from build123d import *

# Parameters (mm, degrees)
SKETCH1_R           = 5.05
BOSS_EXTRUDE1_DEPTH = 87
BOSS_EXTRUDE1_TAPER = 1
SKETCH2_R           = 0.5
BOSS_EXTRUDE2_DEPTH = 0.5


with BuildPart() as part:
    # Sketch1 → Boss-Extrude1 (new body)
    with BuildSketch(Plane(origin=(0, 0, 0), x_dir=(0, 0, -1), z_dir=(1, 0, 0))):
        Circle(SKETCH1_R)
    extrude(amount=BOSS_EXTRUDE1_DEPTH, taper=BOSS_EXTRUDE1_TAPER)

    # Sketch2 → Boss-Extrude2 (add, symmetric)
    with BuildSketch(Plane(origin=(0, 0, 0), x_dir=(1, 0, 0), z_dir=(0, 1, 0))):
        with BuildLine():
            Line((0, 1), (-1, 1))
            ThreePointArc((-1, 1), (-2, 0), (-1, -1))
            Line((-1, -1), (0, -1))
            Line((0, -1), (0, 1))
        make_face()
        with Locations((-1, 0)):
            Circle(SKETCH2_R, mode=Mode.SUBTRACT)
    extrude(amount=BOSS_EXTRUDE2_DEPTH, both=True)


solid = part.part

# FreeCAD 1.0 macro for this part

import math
import FreeCAD as App
import Part
import Sketcher
from FreeCAD import Vector
Q = App.Units.Quantity

doc = App.newDocument("Part")
body = doc.addObject("PartDesign::Body", "Body")

# Sketch on YZ plane
sketch1 = body.newObject("Sketcher::SketchObject", "Sketch")
sketch1.AttachmentSupport = (doc.getObject("YZ_Plane"), [""])
sketch1.MapMode = "FlatFace"
sketch1.addGeometry(Part.Circle(Vector(0, 0, 0), Vector(0, 0, 1), 5.05), False)
sketch1.addConstraint([
    Sketcher.Constraint("Coincident", 0, 3, -1, 1),
    Sketcher.Constraint("Diameter", 0, Q("10.1 mm")),
])
pad1 = body.newObject("PartDesign::Pad", "Pad")
pad1.Profile = sketch1
pad1.Length = 87
pad1.TaperAngle = -1

# Sketch on XZ plane
sketch2 = body.newObject("Sketcher::SketchObject", "Sketch001")
sketch2.AttachmentSupport = (doc.getObject("XZ_Plane"), [""])
sketch2.MapMode = "FlatFace"
sketch2.addGeometry([
    Part.LineSegment(Vector(0, -1, 0), Vector(-1, -1, 0)),  # 0
    Part.ArcOfCircle(Part.Circle(Vector(-1, 0, 0), Vector(0, 0, 1), 1), math.radians(90), math.radians(270)),  # 1
    Part.LineSegment(Vector(-1, 1, 0), Vector(0, 1, 0)),  # 2
    Part.LineSegment(Vector(0, 1, 0), Vector(0, -1, 0)),  # 3
    Part.Circle(Vector(-1, 0, 0), Vector(0, 0, 1), 0.5),  # 4
], False)
sketch2.addConstraint([
    Sketcher.Constraint("Tangent", 0, 2, 1, 2),
    Sketcher.Constraint("Tangent", 1, 1, 2, 1),
    Sketcher.Constraint("Coincident", 2, 2, 3, 1),
    Sketcher.Constraint("Coincident", 3, 2, 0, 1),
    Sketcher.Constraint("Horizontal", 0),
    Sketcher.Constraint("Horizontal", 2),
    Sketcher.Constraint("Vertical", 3),
    Sketcher.Constraint("Coincident", 4, 3, 1, 3),
    Sketcher.Constraint("Symmetric", 2, 2, 3, 2, -1, 1),
    Sketcher.Constraint("Diameter", 4, Q("1 mm")),
    Sketcher.Constraint("Radius", 1, Q("1 mm")),
    Sketcher.Constraint("DistanceX", 0, 2, 0, 1, Q("1 mm")),
])
pad2 = body.newObject("PartDesign::Pad", "Pad001")
pad2.Profile = sketch2
pad2.Length = 1
pad2.Midplane = True

doc.recompute()
